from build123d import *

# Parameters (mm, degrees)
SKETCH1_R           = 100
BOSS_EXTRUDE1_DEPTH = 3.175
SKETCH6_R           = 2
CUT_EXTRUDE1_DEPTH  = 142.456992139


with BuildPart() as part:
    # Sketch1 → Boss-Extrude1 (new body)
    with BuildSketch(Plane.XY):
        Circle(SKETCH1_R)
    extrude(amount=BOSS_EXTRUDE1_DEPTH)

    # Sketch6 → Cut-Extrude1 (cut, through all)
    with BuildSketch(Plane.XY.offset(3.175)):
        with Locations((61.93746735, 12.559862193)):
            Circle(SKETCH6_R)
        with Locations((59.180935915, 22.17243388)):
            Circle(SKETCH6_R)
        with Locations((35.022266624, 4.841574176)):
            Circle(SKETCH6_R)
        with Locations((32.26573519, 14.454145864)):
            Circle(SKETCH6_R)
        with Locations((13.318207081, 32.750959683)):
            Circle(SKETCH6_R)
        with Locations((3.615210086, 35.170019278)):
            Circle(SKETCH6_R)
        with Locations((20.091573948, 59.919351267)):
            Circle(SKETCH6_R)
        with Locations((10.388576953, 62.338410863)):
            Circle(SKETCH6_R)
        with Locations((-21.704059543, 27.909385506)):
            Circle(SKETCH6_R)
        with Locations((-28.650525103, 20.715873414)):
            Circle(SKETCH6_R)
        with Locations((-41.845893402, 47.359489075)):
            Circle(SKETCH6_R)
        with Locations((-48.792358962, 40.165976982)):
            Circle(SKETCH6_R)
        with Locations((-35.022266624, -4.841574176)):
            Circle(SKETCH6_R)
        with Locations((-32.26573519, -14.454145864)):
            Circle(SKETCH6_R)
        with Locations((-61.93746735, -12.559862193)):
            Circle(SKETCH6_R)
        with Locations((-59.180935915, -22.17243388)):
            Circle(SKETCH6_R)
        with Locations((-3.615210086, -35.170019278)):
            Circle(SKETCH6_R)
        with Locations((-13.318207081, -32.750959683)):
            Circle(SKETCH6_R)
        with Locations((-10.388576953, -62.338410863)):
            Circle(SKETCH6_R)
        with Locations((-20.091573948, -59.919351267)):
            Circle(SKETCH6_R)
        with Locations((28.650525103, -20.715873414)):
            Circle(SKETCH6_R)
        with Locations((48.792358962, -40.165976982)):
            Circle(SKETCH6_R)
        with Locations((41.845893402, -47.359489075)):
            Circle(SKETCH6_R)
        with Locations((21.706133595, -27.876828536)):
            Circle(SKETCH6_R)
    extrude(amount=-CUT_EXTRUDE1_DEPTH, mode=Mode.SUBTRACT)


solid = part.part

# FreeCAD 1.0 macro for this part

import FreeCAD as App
import Part
import Sketcher
from FreeCAD import Vector

doc = App.newDocument("Part")
body = doc.addObject("PartDesign::Body", "Body")

# Sketch on XY plane
sketch1 = body.newObject("Sketcher::SketchObject", "Sketch")
sketch1.AttachmentSupport = (doc.getObject("XY_Plane"), [""])
sketch1.MapMode = "FlatFace"
sketch1.addGeometry(Part.Circle(Vector(0, 0, 0), Vector(0, 0, 1), 100), False)
sketch1.addConstraint(Sketcher.Constraint("Coincident", 0, 3, -1, 1))
sketch1.addConstraint(Sketcher.Constraint("Diameter", 0, 200.0))
pad1 = body.newObject("PartDesign::Pad", "Pad")
pad1.Profile = sketch1
pad1.Length = 3.175

# Sketch on XY plane
sketch2 = body.newObject("Sketcher::SketchObject", "Sketch001")
sketch2.AttachmentSupport = (doc.getObject("XY_Plane"), [""])
sketch2.MapMode = "FlatFace"
sketch2.AttachmentOffset = App.Placement(Vector(0, 0, 3.175), App.Rotation())
sketch2.addGeometry(Part.Circle(Vector(61.9, 12.6, 0), Vector(0, 0, 1), 2), False)
sketch2.addGeometry(Part.Circle(Vector(59.2, 22.2, 0), Vector(0, 0, 1), 2), False)
sketch2.addGeometry(Part.Circle(Vector(35, 4.8, 0), Vector(0, 0, 1), 2), False)
sketch2.addGeometry(Part.Circle(Vector(32.3, 14.5, 0), Vector(0, 0, 1), 2), False)
sketch2.addGeometry(Part.Circle(Vector(13.3, 32.8, 0), Vector(0, 0, 1), 2), False)
sketch2.addGeometry(Part.Circle(Vector(3.6, 35.2, 0), Vector(0, 0, 1), 2), False)
sketch2.addGeometry(Part.Circle(Vector(20.1, 59.9, 0), Vector(0, 0, 1), 2), False)
sketch2.addGeometry(Part.Circle(Vector(10.4, 62.3, 0), Vector(0, 0, 1), 2), False)
sketch2.addGeometry(Part.Circle(Vector(-21.7, 27.9, 0), Vector(0, 0, 1), 2), False)
sketch2.addGeometry(Part.Circle(Vector(-28.7, 20.7, 0), Vector(0, 0, 1), 2), False)
sketch2.addGeometry(Part.Circle(Vector(-41.8, 47.4, 0), Vector(0, 0, 1), 2), False)
sketch2.addGeometry(Part.Circle(Vector(-48.8, 40.2, 0), Vector(0, 0, 1), 2), False)
sketch2.addGeometry(Part.Circle(Vector(-35, -4.8, 0), Vector(0, 0, 1), 2), False)
sketch2.addGeometry(Part.Circle(Vector(-32.3, -14.5, 0), Vector(0, 0, 1), 2), False)
sketch2.addGeometry(Part.Circle(Vector(-61.9, -12.6, 0), Vector(0, 0, 1), 2), False)
sketch2.addGeometry(Part.Circle(Vector(-59.2, -22.2, 0), Vector(0, 0, 1), 2), False)
sketch2.addGeometry(Part.Circle(Vector(-3.6, -35.2, 0), Vector(0, 0, 1), 2), False)
sketch2.addGeometry(Part.Circle(Vector(-13.3, -32.8, 0), Vector(0, 0, 1), 2), False)
sketch2.addGeometry(Part.Circle(Vector(-10.4, -62.3, 0), Vector(0, 0, 1), 2), False)
sketch2.addGeometry(Part.Circle(Vector(-20.1, -59.9, 0), Vector(0, 0, 1), 2), False)
sketch2.addGeometry(Part.Circle(Vector(28.7, -20.7, 0), Vector(0, 0, 1), 2), False)
sketch2.addGeometry(Part.Circle(Vector(48.8, -40.2, 0), Vector(0, 0, 1), 2), False)
sketch2.addGeometry(Part.Circle(Vector(41.8, -47.4, 0), Vector(0, 0, 1), 2), False)
sketch2.addGeometry(Part.Circle(Vector(21.7, -27.9, 0), Vector(0, 0, 1), 2), False)
sketch2.addConstraint(Sketcher.Constraint("Equal", 0, 1))
sketch2.addConstraint(Sketcher.Constraint("Equal", 1, 2))
sketch2.addConstraint(Sketcher.Constraint("Equal", 2, 3))
sketch2.addConstraint(Sketcher.Constraint("Equal", 3, 4))
sketch2.addConstraint(Sketcher.Constraint("Equal", 4, 5))
sketch2.addConstraint(Sketcher.Constraint("Equal", 5, 6))
sketch2.addConstraint(Sketcher.Constraint("Equal", 6, 7))
sketch2.addConstraint(Sketcher.Constraint("Equal", 7, 8))
sketch2.addConstraint(Sketcher.Constraint("Equal", 8, 9))
sketch2.addConstraint(Sketcher.Constraint("Equal", 9, 10))
sketch2.addConstraint(Sketcher.Constraint("Equal", 10, 11))
sketch2.addConstraint(Sketcher.Constraint("Equal", 11, 12))
sketch2.addConstraint(Sketcher.Constraint("Equal", 12, 13))
sketch2.addConstraint(Sketcher.Constraint("Equal", 13, 14))
sketch2.addConstraint(Sketcher.Constraint("Equal", 14, 15))
sketch2.addConstraint(Sketcher.Constraint("Equal", 15, 16))
sketch2.addConstraint(Sketcher.Constraint("Equal", 16, 17))
sketch2.addConstraint(Sketcher.Constraint("Equal", 17, 18))
sketch2.addConstraint(Sketcher.Constraint("Equal", 18, 19))
sketch2.addConstraint(Sketcher.Constraint("Equal", 19, 20))
sketch2.addConstraint(Sketcher.Constraint("Equal", 20, 21))
sketch2.addConstraint(Sketcher.Constraint("Equal", 21, 22))
sketch2.addConstraint(Sketcher.Constraint("Equal", 22, 23))
sketch2.addConstraint(Sketcher.Constraint("Symmetric", 2, 3, 12, 3, -1, 1))
sketch2.addConstraint(Sketcher.Constraint("Symmetric", 3, 3, 13, 3, -1, 1))
sketch2.addConstraint(Sketcher.Constraint("Symmetric", 0, 3, 14, 3, -1, 1))
sketch2.addConstraint(Sketcher.Constraint("Symmetric", 1, 3, 15, 3, -1, 1))
sketch2.addConstraint(Sketcher.Constraint("Symmetric", 5, 3, 16, 3, -1, 1))
sketch2.addConstraint(Sketcher.Constraint("Symmetric", 4, 3, 17, 3, -1, 1))
sketch2.addConstraint(Sketcher.Constraint("Symmetric", 7, 3, 18, 3, -1, 1))
sketch2.addConstraint(Sketcher.Constraint("Symmetric", 6, 3, 19, 3, -1, 1))
sketch2.addConstraint(Sketcher.Constraint("Symmetric", 9, 3, 20, 3, -1, 1))
sketch2.addConstraint(Sketcher.Constraint("Symmetric", 11, 3, 21, 3, -1, 1))
sketch2.addConstraint(Sketcher.Constraint("Symmetric", 10, 3, 22, 3, -1, 1))
sketch2.addConstraint(Sketcher.Constraint("Diameter", 0, 4.0))
sketch2.addConstraint(Sketcher.Constraint("DistanceX", 2, 3, 0, 3, 26.915201))
sketch2.addConstraint(Sketcher.Constraint("DistanceX", 3, 3, 1, 3, 26.915201))
sketch2.addConstraint(Sketcher.Constraint("DistanceX", 10, 3, 4, 3, 55.1641))
sketch2.addConstraint(Sketcher.Constraint("DistanceX", 11, 3, 8, 3, 27.088299))
sketch2.addConstraint(Sketcher.Constraint("DistanceY", -1, 1, 4, 3, 32.75096))
sketch2.addConstraint(Sketcher.Constraint("DistanceX", -1, 1, 5, 3, 3.61521))
sketch2.addConstraint(Sketcher.Constraint("DistanceY", -1, 1, 5, 3, 35.170019))
sketch2.addConstraint(Sketcher.Constraint("DistanceY", -1, 1, 6, 3, 59.919351))
sketch2.addConstraint(Sketcher.Constraint("DistanceY", -1, 1, 7, 3, 62.338411))
sketch2.addConstraint(Sketcher.Constraint("DistanceX", 8, 3, -1, 1, 21.70406))
sketch2.addConstraint(Sketcher.Constraint("DistanceY", -1, 1, 10, 3, 47.359489))
sketch2.addConstraint(Sketcher.Constraint("DistanceY", 23, 3, -1, 1, 27.876829))
sketch2.addConstraint(Sketcher.Constraint("DistanceX", 1, 3, 0, 3, 2.756531))
sketch2.addConstraint(Sketcher.Constraint("DistanceY", 0, 3, 1, 3, 9.612572))
sketch2.addConstraint(Sketcher.Constraint("DistanceY", 2, 3, 0, 3, 7.718288))
sketch2.addConstraint(Sketcher.Constraint("DistanceY", 2, 3, 3, 3, 9.612572))
sketch2.addConstraint(Sketcher.Constraint("DistanceX", 4, 3, 3, 3, 18.947528))
sketch2.addConstraint(Sketcher.Constraint("DistanceX", 6, 3, 3, 3, 12.174161))
sketch2.addConstraint(Sketcher.Constraint("DistanceX", 7, 3, 4, 3, 2.92963))
sketch2.addConstraint(Sketcher.Constraint("DistanceY", 3, 3, 8, 3, 13.45524))
sketch2.addConstraint(Sketcher.Constraint("DistanceX", 9, 3, 3, 3, 60.91626))
sketch2.addConstraint(Sketcher.Constraint("DistanceY", 8, 3, 11, 3, 12.256591))
sketch2.addConstraint(Sketcher.Constraint("DistanceX", 12, 3, 9, 3, 6.371742))
sketch2.addConstraint(Sketcher.Constraint("DistanceY", 12, 3, 8, 3, 32.75096))
sketch2.addConstraint(Sketcher.Constraint("DistanceY", 13, 3, 9, 3, 35.170019))
sketch2.addConstraint(Sketcher.Constraint("DistanceX", 23, 3, 20, 3, 6.944392))
pocket1 = body.newObject("PartDesign::Pocket", "Pocket")
pocket1.Profile = sketch2
pocket1.Type = "ThroughAll"

doc.recompute()
